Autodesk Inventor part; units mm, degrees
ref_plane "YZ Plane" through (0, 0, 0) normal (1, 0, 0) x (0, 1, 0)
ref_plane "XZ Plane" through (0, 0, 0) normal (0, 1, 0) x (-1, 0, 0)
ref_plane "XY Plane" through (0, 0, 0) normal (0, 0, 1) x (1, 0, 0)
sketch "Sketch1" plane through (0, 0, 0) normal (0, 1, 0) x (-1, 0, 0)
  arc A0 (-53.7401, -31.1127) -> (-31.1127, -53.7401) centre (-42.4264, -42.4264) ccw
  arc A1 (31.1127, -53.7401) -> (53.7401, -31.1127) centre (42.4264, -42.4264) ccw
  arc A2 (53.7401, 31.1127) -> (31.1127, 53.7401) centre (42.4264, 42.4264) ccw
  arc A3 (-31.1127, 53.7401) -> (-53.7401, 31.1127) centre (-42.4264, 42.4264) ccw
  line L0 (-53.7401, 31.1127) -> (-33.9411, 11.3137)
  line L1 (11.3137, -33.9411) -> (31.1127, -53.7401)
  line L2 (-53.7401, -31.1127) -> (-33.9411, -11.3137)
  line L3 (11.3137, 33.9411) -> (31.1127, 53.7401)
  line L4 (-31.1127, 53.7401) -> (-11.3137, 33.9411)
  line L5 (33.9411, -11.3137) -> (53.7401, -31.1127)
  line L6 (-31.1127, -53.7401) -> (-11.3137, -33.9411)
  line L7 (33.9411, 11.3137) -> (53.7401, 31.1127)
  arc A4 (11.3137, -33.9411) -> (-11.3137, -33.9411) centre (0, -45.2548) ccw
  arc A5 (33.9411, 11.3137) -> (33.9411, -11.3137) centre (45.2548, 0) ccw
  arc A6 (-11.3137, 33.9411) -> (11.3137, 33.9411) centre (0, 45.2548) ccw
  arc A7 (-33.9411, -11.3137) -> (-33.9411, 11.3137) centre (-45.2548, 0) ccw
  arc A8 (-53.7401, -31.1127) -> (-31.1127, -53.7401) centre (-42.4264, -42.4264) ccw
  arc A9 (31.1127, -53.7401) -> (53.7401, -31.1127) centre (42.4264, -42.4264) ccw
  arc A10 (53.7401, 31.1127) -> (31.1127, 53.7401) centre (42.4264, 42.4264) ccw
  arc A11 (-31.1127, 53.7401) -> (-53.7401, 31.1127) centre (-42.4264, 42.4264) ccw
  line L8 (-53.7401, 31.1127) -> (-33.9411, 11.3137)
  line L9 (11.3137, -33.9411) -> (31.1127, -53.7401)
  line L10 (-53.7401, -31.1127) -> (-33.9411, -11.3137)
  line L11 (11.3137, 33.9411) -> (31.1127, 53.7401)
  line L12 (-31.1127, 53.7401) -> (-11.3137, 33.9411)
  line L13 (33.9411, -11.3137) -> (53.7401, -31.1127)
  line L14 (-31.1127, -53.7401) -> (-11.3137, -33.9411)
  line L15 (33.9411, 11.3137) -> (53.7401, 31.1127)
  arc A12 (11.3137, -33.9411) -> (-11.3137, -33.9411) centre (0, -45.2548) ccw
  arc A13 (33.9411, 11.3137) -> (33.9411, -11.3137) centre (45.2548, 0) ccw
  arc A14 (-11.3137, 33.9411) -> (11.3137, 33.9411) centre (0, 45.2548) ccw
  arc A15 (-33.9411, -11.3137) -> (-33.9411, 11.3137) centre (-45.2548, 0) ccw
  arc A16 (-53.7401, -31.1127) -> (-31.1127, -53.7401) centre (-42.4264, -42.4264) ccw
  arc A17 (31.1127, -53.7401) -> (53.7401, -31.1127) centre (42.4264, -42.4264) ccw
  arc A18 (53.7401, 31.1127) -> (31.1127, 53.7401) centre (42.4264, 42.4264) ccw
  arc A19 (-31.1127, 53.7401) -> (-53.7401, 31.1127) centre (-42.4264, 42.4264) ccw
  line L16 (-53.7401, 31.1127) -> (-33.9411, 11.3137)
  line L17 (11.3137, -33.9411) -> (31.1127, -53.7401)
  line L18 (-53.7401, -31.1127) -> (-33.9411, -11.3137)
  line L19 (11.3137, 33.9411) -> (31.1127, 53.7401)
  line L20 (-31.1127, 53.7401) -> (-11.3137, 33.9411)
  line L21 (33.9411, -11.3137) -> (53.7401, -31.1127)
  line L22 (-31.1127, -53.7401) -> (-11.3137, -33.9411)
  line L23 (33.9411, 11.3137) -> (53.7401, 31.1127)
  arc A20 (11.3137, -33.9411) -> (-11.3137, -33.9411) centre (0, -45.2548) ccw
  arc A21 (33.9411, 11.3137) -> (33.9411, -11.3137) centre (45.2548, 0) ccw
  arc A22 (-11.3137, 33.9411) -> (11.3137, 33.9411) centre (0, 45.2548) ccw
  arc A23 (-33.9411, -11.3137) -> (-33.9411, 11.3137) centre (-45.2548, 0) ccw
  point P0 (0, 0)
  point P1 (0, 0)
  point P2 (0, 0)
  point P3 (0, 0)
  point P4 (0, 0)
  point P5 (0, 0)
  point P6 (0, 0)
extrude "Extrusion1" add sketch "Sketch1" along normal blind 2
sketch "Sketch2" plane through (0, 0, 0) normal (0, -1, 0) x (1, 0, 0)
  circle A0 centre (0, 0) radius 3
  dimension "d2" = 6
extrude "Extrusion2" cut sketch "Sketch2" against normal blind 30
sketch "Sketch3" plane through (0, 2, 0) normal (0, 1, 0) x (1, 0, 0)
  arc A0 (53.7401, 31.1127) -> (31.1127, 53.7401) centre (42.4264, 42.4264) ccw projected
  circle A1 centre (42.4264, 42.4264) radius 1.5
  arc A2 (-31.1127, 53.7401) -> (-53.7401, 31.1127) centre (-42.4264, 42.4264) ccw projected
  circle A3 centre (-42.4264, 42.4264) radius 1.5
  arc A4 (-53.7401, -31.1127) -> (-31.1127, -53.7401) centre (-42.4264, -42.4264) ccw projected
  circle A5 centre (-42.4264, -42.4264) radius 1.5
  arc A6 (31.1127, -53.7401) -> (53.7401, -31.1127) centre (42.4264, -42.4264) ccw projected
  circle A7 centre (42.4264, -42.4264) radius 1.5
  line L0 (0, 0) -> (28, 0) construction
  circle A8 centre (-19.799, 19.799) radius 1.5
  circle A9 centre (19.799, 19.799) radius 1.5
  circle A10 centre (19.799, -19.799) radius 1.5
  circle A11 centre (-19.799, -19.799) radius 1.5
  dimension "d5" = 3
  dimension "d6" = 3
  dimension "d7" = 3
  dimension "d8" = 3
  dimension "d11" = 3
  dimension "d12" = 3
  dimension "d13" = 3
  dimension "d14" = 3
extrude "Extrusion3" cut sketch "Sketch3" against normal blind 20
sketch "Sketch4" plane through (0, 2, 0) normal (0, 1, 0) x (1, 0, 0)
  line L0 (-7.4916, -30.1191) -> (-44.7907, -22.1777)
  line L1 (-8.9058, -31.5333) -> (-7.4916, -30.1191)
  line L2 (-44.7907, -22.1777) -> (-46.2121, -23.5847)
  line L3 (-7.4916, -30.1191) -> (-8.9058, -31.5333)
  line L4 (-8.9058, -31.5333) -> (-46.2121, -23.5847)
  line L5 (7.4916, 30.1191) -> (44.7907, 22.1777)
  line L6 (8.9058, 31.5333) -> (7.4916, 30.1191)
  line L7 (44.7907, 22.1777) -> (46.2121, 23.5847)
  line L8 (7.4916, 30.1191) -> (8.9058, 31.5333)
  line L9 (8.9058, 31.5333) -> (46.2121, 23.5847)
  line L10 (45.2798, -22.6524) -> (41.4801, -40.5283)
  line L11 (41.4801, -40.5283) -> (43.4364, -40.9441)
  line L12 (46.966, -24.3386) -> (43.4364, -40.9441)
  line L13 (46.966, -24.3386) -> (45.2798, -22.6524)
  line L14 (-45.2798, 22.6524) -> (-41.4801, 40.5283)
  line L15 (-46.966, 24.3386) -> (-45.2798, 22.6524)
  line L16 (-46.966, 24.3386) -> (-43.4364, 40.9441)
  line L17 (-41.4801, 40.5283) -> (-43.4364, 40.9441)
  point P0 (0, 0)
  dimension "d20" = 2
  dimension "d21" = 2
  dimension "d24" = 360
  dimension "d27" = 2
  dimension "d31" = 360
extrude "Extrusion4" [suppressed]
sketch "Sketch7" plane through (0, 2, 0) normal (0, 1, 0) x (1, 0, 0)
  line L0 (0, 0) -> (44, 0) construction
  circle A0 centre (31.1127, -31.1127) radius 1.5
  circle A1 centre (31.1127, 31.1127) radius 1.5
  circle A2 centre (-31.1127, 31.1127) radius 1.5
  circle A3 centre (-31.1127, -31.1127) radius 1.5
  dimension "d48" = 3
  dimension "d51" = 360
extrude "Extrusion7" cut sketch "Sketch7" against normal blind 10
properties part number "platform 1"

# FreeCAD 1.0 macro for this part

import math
import FreeCAD as App
import Part
import Sketcher

V = App.Vector

doc = App.newDocument("Part")
body = doc.addObject("PartDesign::Body", "Body")

sketch1 = body.newObject("Sketcher::SketchObject", "Sketch")
sketch1.AttachmentSupport = (doc.getObject("XZ_Plane"), [""])
sketch1.MapMode = "FlatFace"
sketch1.addGeometry(Part.LineSegment(V(34, -11, 0), V(54, -31, 0)), False)
sketch1.addGeometry(Part.ArcOfCircle(Part.Circle(V(42, -42, 0), V(0, 0, 1), 16), math.radians(-135), math.radians(45)), False)
sketch1.addGeometry(Part.LineSegment(V(31, -54, 0), V(11, -34, 0)), False)
sketch1.addGeometry(Part.ArcOfCircle(Part.Circle(V(0, -45, 0), V(0, 0, 1), 16), math.radians(45), math.radians(135)), False)
sketch1.addGeometry(Part.LineSegment(V(-11, -34, 0), V(-31, -54, 0)), False)
sketch1.addGeometry(Part.ArcOfCircle(Part.Circle(V(-42, -42, 0), V(0, 0, 1), 16), math.radians(135), math.radians(315)), False)
sketch1.addGeometry(Part.LineSegment(V(-54, -31, 0), V(-34, -11, 0)), False)
sketch1.addGeometry(Part.ArcOfCircle(Part.Circle(V(-45, 0, 0), V(0, 0, 1), 16), math.radians(-45), math.radians(45)), False)
sketch1.addGeometry(Part.LineSegment(V(-34, 11, 0), V(-54, 31, 0)), False)
sketch1.addGeometry(Part.ArcOfCircle(Part.Circle(V(-42, 42, 0), V(0, 0, 1), 16), math.radians(45), math.radians(225)), False)
sketch1.addGeometry(Part.LineSegment(V(-31, 54, 0), V(-11, 34, 0)), False)
sketch1.addGeometry(Part.ArcOfCircle(Part.Circle(V(0, 45, 0), V(0, 0, 1), 16), math.radians(-135), math.radians(-45)), False)
sketch1.addGeometry(Part.LineSegment(V(11, 34, 0), V(31, 54, 0)), False)
sketch1.addGeometry(Part.ArcOfCircle(Part.Circle(V(42, 42, 0), V(0, 0, 1), 16), math.radians(-45), math.radians(135)), False)
sketch1.addGeometry(Part.LineSegment(V(54, 31, 0), V(34, 11, 0)), False)
sketch1.addGeometry(Part.ArcOfCircle(Part.Circle(V(45, 0, 0), V(0, 0, 1), 16), math.radians(135), math.radians(225)), False)
sketch1.addConstraint(Sketcher.Constraint("Tangent", 0, 2, 1, 2))
sketch1.addConstraint(Sketcher.Constraint("Tangent", 1, 1, 2, 1))
sketch1.addConstraint(Sketcher.Constraint("Tangent", 2, 2, 3, 1))
sketch1.addConstraint(Sketcher.Constraint("Tangent", 3, 2, 4, 1))
sketch1.addConstraint(Sketcher.Constraint("Tangent", 4, 2, 5, 2))
sketch1.addConstraint(Sketcher.Constraint("Tangent", 5, 1, 6, 1))
sketch1.addConstraint(Sketcher.Constraint("Tangent", 6, 2, 7, 1))
sketch1.addConstraint(Sketcher.Constraint("Tangent", 7, 2, 8, 1))
sketch1.addConstraint(Sketcher.Constraint("Tangent", 8, 2, 9, 2))
sketch1.addConstraint(Sketcher.Constraint("Tangent", 9, 1, 10, 1))
sketch1.addConstraint(Sketcher.Constraint("Tangent", 10, 2, 11, 1))
sketch1.addConstraint(Sketcher.Constraint("Tangent", 11, 2, 12, 1))
sketch1.addConstraint(Sketcher.Constraint("Tangent", 12, 2, 13, 2))
sketch1.addConstraint(Sketcher.Constraint("Tangent", 13, 1, 14, 1))
sketch1.addConstraint(Sketcher.Constraint("Tangent", 14, 2, 15, 1))
sketch1.addConstraint(Sketcher.Constraint("Tangent", 15, 2, 0, 1))
sketch1.addConstraint(Sketcher.Constraint("Equal", 1, 3))
sketch1.addConstraint(Sketcher.Constraint("Equal", 3, 5))
sketch1.addConstraint(Sketcher.Constraint("Equal", 5, 7))
sketch1.addConstraint(Sketcher.Constraint("Equal", 7, 9))
sketch1.addConstraint(Sketcher.Constraint("Equal", 9, 11))
sketch1.addConstraint(Sketcher.Constraint("Equal", 11, 13))
sketch1.addConstraint(Sketcher.Constraint("Equal", 13, 15))
sketch1.addConstraint(Sketcher.Constraint("Symmetric", 1, 3, 9, 3, -1, 1))
sketch1.addConstraint(Sketcher.Constraint("Symmetric", 3, 3, 11, 3, -1, 1))
sketch1.addConstraint(Sketcher.Constraint("Symmetric", 5, 3, 13, 3, -1, 1))
sketch1.addConstraint(Sketcher.Constraint("Symmetric", 7, 3, 15, 3, -1, 1))
sketch1.addConstraint(Sketcher.Constraint("Symmetric", 1, 3, 5, 3, -2))
sketch1.addConstraint(Sketcher.Constraint("PointOnObject", 3, 3, -2))
sketch1.addConstraint(Sketcher.Constraint("PointOnObject", 7, 3, -1))
sketch1.addConstraint(Sketcher.Constraint("Parallel", 0, 2))
sketch1.addConstraint(Sketcher.Constraint("Perpendicular", 2, 4))
sketch1.addConstraint(Sketcher.Constraint("Equal", 0, 2))
sketch1.addConstraint(Sketcher.Constraint("Radius", 1, 16.0))
sketch1.addConstraint(Sketcher.Constraint("Distance", 0, 28.0))
pad1 = body.newObject("PartDesign::Pad", "Pad")
pad1.Profile = sketch1
pad1.Length = 2
pad1.Reversed = True

sketch2 = body.newObject("Sketcher::SketchObject", "Sketch001")
sketch2.AttachmentSupport = (doc.getObject("XZ_Plane"), [""])
sketch2.MapMode = "FlatFace"
sketch2.addGeometry(Part.Circle(V(0, 0, 0), V(0, 0, 1), 3), False)
sketch2.addConstraint(Sketcher.Constraint("Coincident", 0, 3, -1, 1))
sketch2.addConstraint(Sketcher.Constraint("Diameter", 0, 6.0))
pocket1 = body.newObject("PartDesign::Pocket", "Pocket")
pocket1.Profile = sketch2
pocket1.Length = 30

sketch3 = body.newObject("Sketcher::SketchObject", "Sketch002")
sketch3.AttachmentSupport = (doc.getObject("XZ_Plane"), [""])
sketch3.MapMode = "FlatFace"
sketch3.AttachmentOffset = App.Placement(V(0, 0, -2), App.Rotation())
sketch3.addGeometry(Part.Circle(V(42.4, -42.4, 0), V(0, 0, 1), 1.5), False)
sketch3.addGeometry(Part.Circle(V(-42.4, -42.4, 0), V(0, 0, 1), 1.5), False)
sketch3.addGeometry(Part.Circle(V(-42.4, 42.4, 0), V(0, 0, 1), 1.5), False)
sketch3.addGeometry(Part.Circle(V(42.4, 42.4, 0), V(0, 0, 1), 1.5), False)
sketch3.addGeometry(Part.Circle(V(-19.8, -19.8, 0), V(0, 0, 1), 1.5), False)
sketch3.addGeometry(Part.Circle(V(19.8, -19.8, 0), V(0, 0, 1), 1.5), False)
sketch3.addGeometry(Part.Circle(V(19.8, 19.8, 0), V(0, 0, 1), 1.5), False)
sketch3.addGeometry(Part.Circle(V(-19.8, 19.8, 0), V(0, 0, 1), 1.5), False)
sketch3.addConstraint(Sketcher.Constraint("Equal", 0, 1))
sketch3.addConstraint(Sketcher.Constraint("Equal", 1, 2))
sketch3.addConstraint(Sketcher.Constraint("Equal", 2, 3))
sketch3.addConstraint(Sketcher.Constraint("Equal", 3, 4))
sketch3.addConstraint(Sketcher.Constraint("Equal", 4, 5))
sketch3.addConstraint(Sketcher.Constraint("Equal", 5, 6))
sketch3.addConstraint(Sketcher.Constraint("Equal", 6, 7))
sketch3.addConstraint(Sketcher.Constraint("Symmetric", 0, 3, 2, 3, -1, 1))
sketch3.addConstraint(Sketcher.Constraint("Symmetric", 1, 3, 3, 3, -1, 1))
sketch3.addConstraint(Sketcher.Constraint("Symmetric", 4, 3, 6, 3, -1, 1))
sketch3.addConstraint(Sketcher.Constraint("Symmetric", 5, 3, 7, 3, -1, 1))
sketch3.addConstraint(Sketcher.Constraint("Symmetric", 0, 3, 1, 3, -2))
sketch3.addConstraint(Sketcher.Constraint("Symmetric", 4, 3, 5, 3, -2))
sketch3.addConstraint(Sketcher.Constraint("Diameter", 0, 3.0))
sketch3.addConstraint(Sketcher.Constraint("DistanceX", 4, 3, -1, 1, 19.799))
sketch3.addConstraint(Sketcher.Constraint("DistanceY", 4, 3, -1, 1, 19.799))
sketch3.addConstraint(Sketcher.Constraint("DistanceX", -1, 1, 0, 3, 42.4264))
sketch3.addConstraint(Sketcher.Constraint("DistanceY", 0, 3, -1, 1, 42.4264))
pocket2 = body.newObject("PartDesign::Pocket", "Pocket001")
pocket2.Profile = sketch3
pocket2.Length = 20
pocket2.Reversed = True

sketch4 = body.newObject("Sketcher::SketchObject", "Sketch003")
sketch4.AttachmentSupport = (doc.getObject("XZ_Plane"), [""])
sketch4.MapMode = "FlatFace"
sketch4.AttachmentOffset = App.Placement(V(0, 0, -2), App.Rotation())
sketch4.addGeometry(Part.Circle(V(31.1, 31.1, 0), V(0, 0, 1), 1.5), False)
sketch4.addGeometry(Part.Circle(V(31.1, -31.1, 0), V(0, 0, 1), 1.5), False)
sketch4.addGeometry(Part.Circle(V(-31.1, -31.1, 0), V(0, 0, 1), 1.5), False)
sketch4.addGeometry(Part.Circle(V(-31.1, 31.1, 0), V(0, 0, 1), 1.5), False)
sketch4.addConstraint(Sketcher.Constraint("Equal", 0, 1))
sketch4.addConstraint(Sketcher.Constraint("Equal", 1, 2))
sketch4.addConstraint(Sketcher.Constraint("Equal", 2, 3))
sketch4.addConstraint(Sketcher.Constraint("Symmetric", 0, 3, 2, 3, -1, 1))
sketch4.addConstraint(Sketcher.Constraint("Symmetric", 1, 3, 3, 3, -1, 1))
sketch4.addConstraint(Sketcher.Constraint("Symmetric", 1, 3, 2, 3, -2))
sketch4.addConstraint(Sketcher.Constraint("Diameter", 0, 3.0))
sketch4.addConstraint(Sketcher.Constraint("DistanceX", -1, 1, 0, 3, 31.1127))
sketch4.addConstraint(Sketcher.Constraint("DistanceY", -1, 1, 0, 3, 31.1127))
pocket3 = body.newObject("PartDesign::Pocket", "Pocket002")
pocket3.Profile = sketch4
pocket3.Length = 10
pocket3.Reversed = True

doc.recompute()
